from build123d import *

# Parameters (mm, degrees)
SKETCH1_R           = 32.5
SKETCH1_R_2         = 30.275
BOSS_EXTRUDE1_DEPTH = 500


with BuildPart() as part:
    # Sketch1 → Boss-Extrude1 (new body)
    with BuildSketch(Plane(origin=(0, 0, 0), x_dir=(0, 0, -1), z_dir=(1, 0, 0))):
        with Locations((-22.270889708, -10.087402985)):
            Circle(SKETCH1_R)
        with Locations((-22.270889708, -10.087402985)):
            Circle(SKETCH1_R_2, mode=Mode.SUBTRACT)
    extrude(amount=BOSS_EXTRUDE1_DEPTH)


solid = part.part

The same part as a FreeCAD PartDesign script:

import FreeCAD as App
import Part
import Sketcher
from FreeCAD import Vector
Q = App.Units.Quantity

doc = App.newDocument("Part")
body = doc.addObject("PartDesign::Body", "Body")

sketch1 = doc.addObject("Sketcher::SketchObject", "Sketch")
body.addObject(sketch1)
sketch1.AttachmentSupport = (doc.YZ_Plane, [""])
sketch1.MapMode = "FlatFace"
sketch1.addGeometry([
    Part.Circle(Vector(-10, 22, 0), Vector(0, 0, 1), 32),
    Part.Circle(Vector(-10, 22, 0), Vector(0, 0, 1), 30),
], False)
sketch1.addConstraint([
    Sketcher.Constraint("Coincident", 1, 3, 0, 3),
    Sketcher.Constraint("Diameter", 0, Q("65 mm")),
    Sketcher.Constraint("Diameter", 1, Q("60.55 mm")),
    Sketcher.Constraint("DistanceY", -1, 1, 0, 3, Q("22.27089 mm")),
    Sketcher.Constraint("DistanceX", 0, 3, -1, 1, Q("10.087403 mm")),
])
pad1 = doc.addObject("PartDesign::Pad", "Pad")
body.addObject(pad1)
pad1.Profile = sketch1
pad1.Length = 500

doc.recompute()
